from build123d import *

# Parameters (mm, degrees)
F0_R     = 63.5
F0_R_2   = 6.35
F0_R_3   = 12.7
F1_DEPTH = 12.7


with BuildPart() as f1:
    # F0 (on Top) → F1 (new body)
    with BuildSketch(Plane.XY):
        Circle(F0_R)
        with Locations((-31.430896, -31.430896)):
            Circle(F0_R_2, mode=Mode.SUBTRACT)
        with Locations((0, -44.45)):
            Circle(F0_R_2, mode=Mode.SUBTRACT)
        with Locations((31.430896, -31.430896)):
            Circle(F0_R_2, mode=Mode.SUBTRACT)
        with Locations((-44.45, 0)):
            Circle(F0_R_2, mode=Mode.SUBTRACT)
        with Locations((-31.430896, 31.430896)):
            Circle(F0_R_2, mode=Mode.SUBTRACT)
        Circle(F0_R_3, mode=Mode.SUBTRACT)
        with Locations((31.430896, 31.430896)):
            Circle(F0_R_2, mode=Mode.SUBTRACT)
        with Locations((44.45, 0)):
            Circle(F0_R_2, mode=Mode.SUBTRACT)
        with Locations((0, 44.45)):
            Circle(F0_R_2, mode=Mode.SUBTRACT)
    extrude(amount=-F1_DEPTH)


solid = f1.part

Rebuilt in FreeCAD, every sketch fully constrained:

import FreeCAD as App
import Part
import Sketcher
from FreeCAD import Vector
Q = App.Units.Quantity

doc = App.newDocument("Part")
body = doc.addObject("PartDesign::Body", "Body")

# Sketch on XY plane
sketch1 = body.newObject("Sketcher::SketchObject", "Sketch")
sketch1.AttachmentSupport = (doc.getObject("XY_Plane"), [""])
sketch1.MapMode = "FlatFace"
sketch1.addGeometry(Part.Circle(Vector(0, 0, 0), Vector(0, 0, 1), 64), False)
sketch1.addGeometry(Part.Circle(Vector(-31, -31, 0), Vector(0, 0, 1), 6), False)
sketch1.addGeometry(Part.Circle(Vector(0, -44, 0), Vector(0, 0, 1), 6), False)
sketch1.addGeometry(Part.Circle(Vector(31, -31, 0), Vector(0, 0, 1), 6), False)
sketch1.addGeometry(Part.Circle(Vector(0, 0, 0), Vector(0, 0, 1), 13), False)
sketch1.addGeometry(Part.Circle(Vector(-44, 0, 0), Vector(0, 0, 1), 6), False)
sketch1.addGeometry(Part.Circle(Vector(-31, 31, 0), Vector(0, 0, 1), 6), False)
sketch1.addGeometry(Part.Circle(Vector(44, 0, 0), Vector(0, 0, 1), 6), False)
sketch1.addGeometry(Part.Circle(Vector(0, 44, 0), Vector(0, 0, 1), 6), False)
sketch1.addGeometry(Part.Circle(Vector(31, 31, 0), Vector(0, 0, 1), 6), False)
sketch1.addConstraint(Sketcher.Constraint("Coincident", 0, 3, -1, 1))
sketch1.addConstraint(Sketcher.Constraint("Coincident", 4, 3, -1, 1))
sketch1.addConstraint(Sketcher.Constraint("Equal", 1, 2))
sketch1.addConstraint(Sketcher.Constraint("Equal", 2, 3))
sketch1.addConstraint(Sketcher.Constraint("Equal", 3, 5))
sketch1.addConstraint(Sketcher.Constraint("Equal", 5, 6))
sketch1.addConstraint(Sketcher.Constraint("Equal", 6, 7))
sketch1.addConstraint(Sketcher.Constraint("Equal", 7, 8))
sketch1.addConstraint(Sketcher.Constraint("Equal", 8, 9))
sketch1.addConstraint(Sketcher.Constraint("Symmetric", 3, 3, 6, 3, -1, 1))
sketch1.addConstraint(Sketcher.Constraint("Symmetric", 5, 3, 7, 3, -1, 1))
sketch1.addConstraint(Sketcher.Constraint("Symmetric", 2, 3, 8, 3, -1, 1))
sketch1.addConstraint(Sketcher.Constraint("Symmetric", 1, 3, 9, 3, -1, 1))
sketch1.addConstraint(Sketcher.Constraint("Symmetric", 1, 3, 3, 3, -2))
sketch1.addConstraint(Sketcher.Constraint("PointOnObject", 2, 3, -2))
sketch1.addConstraint(Sketcher.Constraint("PointOnObject", 5, 3, -1))
sketch1.addConstraint(Sketcher.Constraint("Diameter", 0, Q("5 in")))
sketch1.addConstraint(Sketcher.Constraint("Diameter", 4, Q("1 in")))
sketch1.addConstraint(Sketcher.Constraint("Diameter", 1, Q("0.5 in")))
sketch1.addConstraint(Sketcher.Constraint("DistanceY", 2, 3, -1, 1, Q("1.75 in")))
sketch1.addConstraint(Sketcher.Constraint("DistanceX", 5, 3, -1, 1, Q("1.75 in")))
sketch1.addConstraint(Sketcher.Constraint("DistanceX", 1, 3, -1, 1, 31.430896))
sketch1.addConstraint(Sketcher.Constraint("DistanceY", 1, 3, -1, 1, 31.430896))
pad1 = body.newObject("PartDesign::Pad", "Pad")
pad1.Profile = sketch1
pad1.Length = Q("0.5 in")
pad1.Reversed = True

doc.recompute()
